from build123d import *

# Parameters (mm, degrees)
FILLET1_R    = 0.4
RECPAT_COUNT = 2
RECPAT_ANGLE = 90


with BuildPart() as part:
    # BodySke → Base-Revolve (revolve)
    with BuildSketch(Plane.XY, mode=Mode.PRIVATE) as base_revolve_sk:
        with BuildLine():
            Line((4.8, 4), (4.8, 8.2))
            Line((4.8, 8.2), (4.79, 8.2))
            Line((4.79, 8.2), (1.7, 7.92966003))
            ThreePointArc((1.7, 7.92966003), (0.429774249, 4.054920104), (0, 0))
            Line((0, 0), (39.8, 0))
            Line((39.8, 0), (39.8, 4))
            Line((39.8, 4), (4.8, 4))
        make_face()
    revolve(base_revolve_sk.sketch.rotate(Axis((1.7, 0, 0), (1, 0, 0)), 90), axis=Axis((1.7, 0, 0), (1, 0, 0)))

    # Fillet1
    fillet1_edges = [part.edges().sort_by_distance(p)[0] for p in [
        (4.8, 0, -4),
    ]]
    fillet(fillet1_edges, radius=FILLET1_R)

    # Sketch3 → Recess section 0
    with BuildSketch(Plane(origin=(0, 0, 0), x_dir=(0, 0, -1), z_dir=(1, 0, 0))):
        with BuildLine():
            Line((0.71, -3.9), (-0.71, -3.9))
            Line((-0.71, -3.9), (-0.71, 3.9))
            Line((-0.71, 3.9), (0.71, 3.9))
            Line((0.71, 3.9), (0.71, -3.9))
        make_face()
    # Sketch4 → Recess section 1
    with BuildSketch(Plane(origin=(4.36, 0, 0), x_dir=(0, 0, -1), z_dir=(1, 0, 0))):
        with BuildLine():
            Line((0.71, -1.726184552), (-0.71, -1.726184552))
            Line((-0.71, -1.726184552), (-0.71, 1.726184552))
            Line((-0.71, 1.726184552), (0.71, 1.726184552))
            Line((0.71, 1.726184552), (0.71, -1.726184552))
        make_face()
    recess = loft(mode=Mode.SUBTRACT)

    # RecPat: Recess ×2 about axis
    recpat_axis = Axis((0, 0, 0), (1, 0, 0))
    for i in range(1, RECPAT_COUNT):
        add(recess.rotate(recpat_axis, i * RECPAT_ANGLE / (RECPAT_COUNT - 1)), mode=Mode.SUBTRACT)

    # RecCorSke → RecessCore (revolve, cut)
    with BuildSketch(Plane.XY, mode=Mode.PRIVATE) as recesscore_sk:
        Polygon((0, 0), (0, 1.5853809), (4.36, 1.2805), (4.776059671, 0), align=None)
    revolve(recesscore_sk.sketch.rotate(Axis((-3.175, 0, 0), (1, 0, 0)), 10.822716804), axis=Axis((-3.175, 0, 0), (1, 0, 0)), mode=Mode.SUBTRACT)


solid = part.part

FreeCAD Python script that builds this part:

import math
import FreeCAD as App
import Part
import Sketcher

V = App.Vector
Q = App.Units.Quantity


def edges_at(feature, points):
    """Names of the edges that pass closest to the given points."""
    edges = feature.Shape.Edges
    near = lambda p: min(range(len(edges)), key=lambda i: edges[i].distToShape(Part.Vertex(*p))[0])
    return sorted({f"Edge{near(p) + 1}" for p in points})


def add_polygon(sketch, points):
    """Adds a closed chain of lines whose ends are joined by coincident constraints."""
    first, n = sketch.GeometryCount, len(points)
    for a, b in zip(points, points[1:] + points[:1]):
        sketch.addGeometry(Part.LineSegment(App.Vector(*a, 0), App.Vector(*b, 0)), False)
    for i in range(n):
        sketch.addConstraint(Sketcher.Constraint("Coincident", first + i, 2, first + (i + 1) % n, 1))

doc = App.newDocument("Part")
body = doc.addObject("PartDesign::Body", "Body")

# Sketch on XY plane
sketch1 = body.newObject("Sketcher::SketchObject", "Sketch")
sketch1.AttachmentSupport = (doc.getObject("XY_Plane"), [""])
sketch1.MapMode = "FlatFace"
sketch1.addGeometry([
    Part.LineSegment(V(4.8, 4, 0), V(4.8, 8.2, 0)),  # 0
    Part.LineSegment(V(4.8, 8.2, 0), V(4.79, 8.2, 0)),  # 1
    Part.LineSegment(V(4.79, 8.2, 0), V(1.7, 7.93, 0)),  # 2
    Part.ArcOfCircle(Part.Circle(V(19.344, 0, 0), V(0, 0, 1), 19.344), math.radians(156), math.radians(180)),  # 3
    Part.LineSegment(V(0, 0, 0), V(39.8, 0, 0)),  # 4
    Part.LineSegment(V(39.8, 0, 0), V(39.8, 4, 0)),  # 5
    Part.LineSegment(V(39.8, 4, 0), V(4.8, 4, 0)),  # 6
], False)
sketch1.addConstraint([
    Sketcher.Constraint("Coincident", 0, 2, 1, 1),
    Sketcher.Constraint("Coincident", 1, 2, 2, 1),
    Sketcher.Constraint("Coincident", 2, 2, 3, 1),
    Sketcher.Constraint("Coincident", 3, 2, 4, 1),
    Sketcher.Constraint("Coincident", 4, 2, 5, 1),
    Sketcher.Constraint("Coincident", 5, 2, 6, 1),
    Sketcher.Constraint("Coincident", 6, 2, 0, 1),
    Sketcher.Constraint("Vertical", 0),
    Sketcher.Constraint("Horizontal", 1),
    Sketcher.Constraint("Horizontal", 4),
    Sketcher.Constraint("Vertical", 5),
    Sketcher.Constraint("Horizontal", 6),
    Sketcher.Constraint("Coincident", 3, 2, -1, 1),
    Sketcher.Constraint("PointOnObject", 3, 3, -1),
    Sketcher.Constraint("DistanceX", 6, 2, 6, 1, 35.0),
    Sketcher.Constraint("DistanceY", 5, 1, 5, 2, 4.0),
    Sketcher.Constraint("Angle", 2, Q("-175 deg")),
    Sketcher.Constraint("DistanceX", 4, 1, 4, 2, 39.8),
    Sketcher.Constraint("DistanceY", 0, 1, 0, 2, 4.2),
    Sketcher.Constraint("DistanceX", 1, 2, 1, 1, 0.01),
    Sketcher.Constraint("DistanceX", -1, 1, 2, 2, 1.7),
])
revolution = body.newObject("PartDesign::Revolution", "Revolution")
revolution.Profile = sketch1
revolution.ReferenceAxis = (sketch1, ["H_Axis"])
revolution.Angle = 360
doc.recompute()

fillet = body.newObject("PartDesign::Fillet", "Fillet")
fillet.Base = (revolution, edges_at(revolution, [(4.8, 0, -4)]))
fillet.Radius = 0.4

# Sketch on YZ plane
sketch2 = body.newObject("Sketcher::SketchObject", "Sketch001")
sketch2.AttachmentSupport = (doc.getObject("YZ_Plane"), [""])
sketch2.MapMode = "FlatFace"
add_polygon(sketch2, [(-3.9, 0.7), (-3.9, -0.7), (3.9, -0.7), (3.9, 0.7)])  # lines 0-3
sketch2.addConstraint([
    Sketcher.Constraint("Vertical", 0),
    Sketcher.Constraint("Horizontal", 1),
    Sketcher.Constraint("Vertical", 2),
    Sketcher.Constraint("Horizontal", 3),
    Sketcher.Constraint("Symmetric", 0, 2, 2, 2, -1, 1),
    Sketcher.Constraint("DistanceX", 1, 1, 1, 2, 7.8),
    Sketcher.Constraint("DistanceY", 0, 2, 0, 1, 1.42),
])

# Sketch on YZ plane
sketch3 = body.newObject("Sketcher::SketchObject", "Sketch002")
sketch3.AttachmentSupport = (doc.getObject("YZ_Plane"), [""])
sketch3.MapMode = "FlatFace"
sketch3.AttachmentOffset = App.Placement(V(0, 0, 4.36), App.Rotation())
add_polygon(sketch3, [(-1.7, 0.7), (-1.7, -0.7), (1.7, -0.7), (1.7, 0.7)])  # lines 0-3
sketch3.addConstraint([
    Sketcher.Constraint("Vertical", 0),
    Sketcher.Constraint("Horizontal", 1),
    Sketcher.Constraint("Vertical", 2),
    Sketcher.Constraint("Horizontal", 3),
    Sketcher.Constraint("Symmetric", 0, 2, 2, 2, -1, 1),
    Sketcher.Constraint("DistanceY", 0, 2, 0, 1, 1.42),
    Sketcher.Constraint("DistanceX", 1, 1, 1, 2, 3.452369),
])

subtractiveloft = body.newObject("PartDesign::SubtractiveLoft", "SubtractiveLoft")
subtractiveloft.Profile = sketch2
subtractiveloft.Sections = [sketch3]
doc.recompute()

polarpattern = body.newObject("PartDesign::PolarPattern", "PolarPattern")
polarpattern.Originals = [subtractiveloft]
polarpattern.Axis = (doc.getObject("X_Axis"), [""])
polarpattern.Angle = 90
polarpattern.Occurrences = 2
body.Tip = polarpattern

# Sketch on XY plane
sketch4 = body.newObject("Sketcher::SketchObject", "Sketch003")
sketch4.AttachmentSupport = (doc.getObject("XY_Plane"), [""])
sketch4.MapMode = "FlatFace"
add_polygon(sketch4, [(0, 1.6), (0, 0), (4.8, 0), (4.4, 1.3)])  # lines 0-3
sketch4.addConstraint([
    Sketcher.Constraint("Vertical", 0),
    Sketcher.Constraint("Horizontal", 1),
    Sketcher.Constraint("Coincident", 0, 2, -1, 1),
    Sketcher.Constraint("Angle", 2, Q("108 deg")),
    Sketcher.Constraint("Angle", 3, Q("176 deg")),
    Sketcher.Constraint("DistanceX", -1, 1, 2, 2, 4.36),
    Sketcher.Constraint("DistanceX", 1, 1, 1, 2, 4.77606),
])
groove = body.newObject("PartDesign::Groove", "Groove")
groove.Profile = sketch4
groove.ReferenceAxis = (sketch4, ["H_Axis"])
groove.Angle = 360

doc.recompute()
